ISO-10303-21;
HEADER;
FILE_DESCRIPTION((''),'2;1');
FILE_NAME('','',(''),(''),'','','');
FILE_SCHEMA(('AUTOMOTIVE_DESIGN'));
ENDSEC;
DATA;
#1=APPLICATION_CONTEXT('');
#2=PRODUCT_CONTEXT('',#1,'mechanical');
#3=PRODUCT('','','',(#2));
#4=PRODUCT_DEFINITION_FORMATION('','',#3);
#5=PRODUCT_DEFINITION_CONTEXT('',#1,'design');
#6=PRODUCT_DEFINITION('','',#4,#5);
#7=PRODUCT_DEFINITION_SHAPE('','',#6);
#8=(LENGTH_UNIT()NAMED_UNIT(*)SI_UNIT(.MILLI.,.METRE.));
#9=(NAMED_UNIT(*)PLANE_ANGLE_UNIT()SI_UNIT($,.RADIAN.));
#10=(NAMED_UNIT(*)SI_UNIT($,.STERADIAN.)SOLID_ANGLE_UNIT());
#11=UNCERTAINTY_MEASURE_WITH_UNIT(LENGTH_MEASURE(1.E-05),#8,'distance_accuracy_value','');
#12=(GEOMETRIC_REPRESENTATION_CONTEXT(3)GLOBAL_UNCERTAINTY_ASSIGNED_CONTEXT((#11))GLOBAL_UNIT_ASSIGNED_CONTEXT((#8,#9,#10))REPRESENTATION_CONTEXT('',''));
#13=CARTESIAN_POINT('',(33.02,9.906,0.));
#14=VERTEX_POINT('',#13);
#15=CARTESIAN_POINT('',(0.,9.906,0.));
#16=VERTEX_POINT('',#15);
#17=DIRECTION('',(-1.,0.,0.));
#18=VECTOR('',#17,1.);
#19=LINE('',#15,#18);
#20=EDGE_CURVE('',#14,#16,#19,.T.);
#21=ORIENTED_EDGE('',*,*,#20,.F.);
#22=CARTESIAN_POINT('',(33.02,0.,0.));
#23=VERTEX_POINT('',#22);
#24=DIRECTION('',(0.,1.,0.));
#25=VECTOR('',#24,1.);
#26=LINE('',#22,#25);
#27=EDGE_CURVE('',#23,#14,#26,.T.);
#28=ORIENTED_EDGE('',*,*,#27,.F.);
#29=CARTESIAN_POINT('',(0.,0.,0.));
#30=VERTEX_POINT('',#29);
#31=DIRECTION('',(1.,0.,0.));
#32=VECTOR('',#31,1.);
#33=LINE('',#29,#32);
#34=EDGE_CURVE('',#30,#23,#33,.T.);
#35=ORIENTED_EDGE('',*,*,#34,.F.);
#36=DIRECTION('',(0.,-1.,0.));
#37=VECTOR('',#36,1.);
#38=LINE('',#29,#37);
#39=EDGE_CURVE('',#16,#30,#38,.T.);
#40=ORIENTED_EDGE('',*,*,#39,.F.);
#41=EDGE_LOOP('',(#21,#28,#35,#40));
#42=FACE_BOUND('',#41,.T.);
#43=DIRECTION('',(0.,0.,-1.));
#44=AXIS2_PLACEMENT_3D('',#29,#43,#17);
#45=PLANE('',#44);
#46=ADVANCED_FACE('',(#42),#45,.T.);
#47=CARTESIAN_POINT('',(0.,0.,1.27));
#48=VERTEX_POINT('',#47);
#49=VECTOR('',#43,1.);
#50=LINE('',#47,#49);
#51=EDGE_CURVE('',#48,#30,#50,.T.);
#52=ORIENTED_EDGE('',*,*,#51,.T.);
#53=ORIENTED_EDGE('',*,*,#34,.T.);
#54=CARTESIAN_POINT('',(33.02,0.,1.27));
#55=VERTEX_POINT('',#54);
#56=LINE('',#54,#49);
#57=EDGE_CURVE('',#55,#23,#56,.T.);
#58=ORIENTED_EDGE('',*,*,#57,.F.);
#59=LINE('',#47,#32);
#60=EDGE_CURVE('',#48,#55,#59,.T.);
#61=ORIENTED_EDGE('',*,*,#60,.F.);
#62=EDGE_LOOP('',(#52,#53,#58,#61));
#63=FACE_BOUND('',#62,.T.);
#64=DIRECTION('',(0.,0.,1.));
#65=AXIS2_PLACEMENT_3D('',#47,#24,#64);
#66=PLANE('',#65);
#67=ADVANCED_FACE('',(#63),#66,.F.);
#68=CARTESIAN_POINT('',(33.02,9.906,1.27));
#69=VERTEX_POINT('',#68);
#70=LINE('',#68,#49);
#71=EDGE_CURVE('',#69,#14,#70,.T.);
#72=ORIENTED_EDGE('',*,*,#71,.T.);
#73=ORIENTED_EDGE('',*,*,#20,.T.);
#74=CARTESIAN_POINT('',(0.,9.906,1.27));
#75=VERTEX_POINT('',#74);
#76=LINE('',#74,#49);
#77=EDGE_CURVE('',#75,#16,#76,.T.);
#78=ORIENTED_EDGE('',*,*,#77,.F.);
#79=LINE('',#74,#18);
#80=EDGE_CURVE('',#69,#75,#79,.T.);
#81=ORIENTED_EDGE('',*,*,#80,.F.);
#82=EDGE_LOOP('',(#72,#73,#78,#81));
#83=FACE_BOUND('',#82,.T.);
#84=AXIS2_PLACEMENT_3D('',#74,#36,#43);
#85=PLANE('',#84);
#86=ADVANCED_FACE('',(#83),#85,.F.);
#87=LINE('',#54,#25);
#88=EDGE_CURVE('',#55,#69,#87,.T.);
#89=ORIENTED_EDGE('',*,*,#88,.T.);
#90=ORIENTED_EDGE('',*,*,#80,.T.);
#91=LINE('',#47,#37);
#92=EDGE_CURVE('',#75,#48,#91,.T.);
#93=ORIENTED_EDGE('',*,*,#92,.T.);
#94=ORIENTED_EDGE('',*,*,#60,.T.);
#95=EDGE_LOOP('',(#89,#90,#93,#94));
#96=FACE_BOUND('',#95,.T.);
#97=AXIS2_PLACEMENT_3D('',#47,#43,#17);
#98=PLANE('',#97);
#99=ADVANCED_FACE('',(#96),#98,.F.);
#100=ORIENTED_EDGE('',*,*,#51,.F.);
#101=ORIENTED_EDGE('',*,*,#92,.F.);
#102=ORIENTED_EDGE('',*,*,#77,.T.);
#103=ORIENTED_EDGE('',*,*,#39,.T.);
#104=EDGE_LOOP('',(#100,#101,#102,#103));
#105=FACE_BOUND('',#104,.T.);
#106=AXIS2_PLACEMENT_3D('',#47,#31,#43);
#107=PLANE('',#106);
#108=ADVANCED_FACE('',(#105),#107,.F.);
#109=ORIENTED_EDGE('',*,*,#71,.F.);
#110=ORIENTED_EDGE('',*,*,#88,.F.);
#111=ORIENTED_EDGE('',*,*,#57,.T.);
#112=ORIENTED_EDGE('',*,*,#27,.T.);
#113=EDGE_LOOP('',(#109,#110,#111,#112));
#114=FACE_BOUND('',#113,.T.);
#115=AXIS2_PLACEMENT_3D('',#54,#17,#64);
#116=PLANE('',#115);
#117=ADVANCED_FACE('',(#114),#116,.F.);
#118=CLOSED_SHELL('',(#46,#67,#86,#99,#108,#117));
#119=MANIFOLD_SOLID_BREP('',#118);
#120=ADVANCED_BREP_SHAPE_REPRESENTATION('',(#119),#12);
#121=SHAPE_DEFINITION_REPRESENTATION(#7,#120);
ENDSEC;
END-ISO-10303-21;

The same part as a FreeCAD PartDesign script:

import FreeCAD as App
import Part
import Sketcher
Q = App.Units.Quantity

doc = App.newDocument("Part")
body = doc.addObject("PartDesign::Body", "Body")

sketch1 = body.newObject("Sketcher::SketchObject", "Sketch")
sketch1.AttachmentSupport = (doc.getObject("XY_Plane"), [""])
sketch1.MapMode = "FlatFace"
sketch1.addGeometry([
    Part.LineSegment(App.Vector(0, 10, 0), App.Vector(0, 0, 0)),
    Part.LineSegment(App.Vector(0, 0, 0), App.Vector(33, 0, 0)),
    Part.LineSegment(App.Vector(33, 0, 0), App.Vector(33, 10, 0)),
    Part.LineSegment(App.Vector(33, 10, 0), App.Vector(0, 10, 0)),
], False)
sketch1.addConstraint([
    Sketcher.Constraint("Coincident", 0, 2, 1, 1),
    Sketcher.Constraint("Coincident", 1, 2, 2, 1),
    Sketcher.Constraint("Coincident", 2, 2, 3, 1),
    Sketcher.Constraint("Coincident", 3, 2, 0, 1),
    Sketcher.Constraint("Vertical", 0),
    Sketcher.Constraint("Horizontal", 1),
    Sketcher.Constraint("Vertical", 2),
    Sketcher.Constraint("Horizontal", 3),
    Sketcher.Constraint("Coincident", 0, 2, -1, 1),
    Sketcher.Constraint("DistanceX", 1, 1, 1, 2, Q("1.3 in")),
    Sketcher.Constraint("DistanceY", 0, 2, 0, 1, Q("0.39 in")),
])
pad1 = body.newObject("PartDesign::Pad", "Pad")
pad1.Profile = sketch1
pad1.Length = Q("0.05 in")

doc.recompute()
